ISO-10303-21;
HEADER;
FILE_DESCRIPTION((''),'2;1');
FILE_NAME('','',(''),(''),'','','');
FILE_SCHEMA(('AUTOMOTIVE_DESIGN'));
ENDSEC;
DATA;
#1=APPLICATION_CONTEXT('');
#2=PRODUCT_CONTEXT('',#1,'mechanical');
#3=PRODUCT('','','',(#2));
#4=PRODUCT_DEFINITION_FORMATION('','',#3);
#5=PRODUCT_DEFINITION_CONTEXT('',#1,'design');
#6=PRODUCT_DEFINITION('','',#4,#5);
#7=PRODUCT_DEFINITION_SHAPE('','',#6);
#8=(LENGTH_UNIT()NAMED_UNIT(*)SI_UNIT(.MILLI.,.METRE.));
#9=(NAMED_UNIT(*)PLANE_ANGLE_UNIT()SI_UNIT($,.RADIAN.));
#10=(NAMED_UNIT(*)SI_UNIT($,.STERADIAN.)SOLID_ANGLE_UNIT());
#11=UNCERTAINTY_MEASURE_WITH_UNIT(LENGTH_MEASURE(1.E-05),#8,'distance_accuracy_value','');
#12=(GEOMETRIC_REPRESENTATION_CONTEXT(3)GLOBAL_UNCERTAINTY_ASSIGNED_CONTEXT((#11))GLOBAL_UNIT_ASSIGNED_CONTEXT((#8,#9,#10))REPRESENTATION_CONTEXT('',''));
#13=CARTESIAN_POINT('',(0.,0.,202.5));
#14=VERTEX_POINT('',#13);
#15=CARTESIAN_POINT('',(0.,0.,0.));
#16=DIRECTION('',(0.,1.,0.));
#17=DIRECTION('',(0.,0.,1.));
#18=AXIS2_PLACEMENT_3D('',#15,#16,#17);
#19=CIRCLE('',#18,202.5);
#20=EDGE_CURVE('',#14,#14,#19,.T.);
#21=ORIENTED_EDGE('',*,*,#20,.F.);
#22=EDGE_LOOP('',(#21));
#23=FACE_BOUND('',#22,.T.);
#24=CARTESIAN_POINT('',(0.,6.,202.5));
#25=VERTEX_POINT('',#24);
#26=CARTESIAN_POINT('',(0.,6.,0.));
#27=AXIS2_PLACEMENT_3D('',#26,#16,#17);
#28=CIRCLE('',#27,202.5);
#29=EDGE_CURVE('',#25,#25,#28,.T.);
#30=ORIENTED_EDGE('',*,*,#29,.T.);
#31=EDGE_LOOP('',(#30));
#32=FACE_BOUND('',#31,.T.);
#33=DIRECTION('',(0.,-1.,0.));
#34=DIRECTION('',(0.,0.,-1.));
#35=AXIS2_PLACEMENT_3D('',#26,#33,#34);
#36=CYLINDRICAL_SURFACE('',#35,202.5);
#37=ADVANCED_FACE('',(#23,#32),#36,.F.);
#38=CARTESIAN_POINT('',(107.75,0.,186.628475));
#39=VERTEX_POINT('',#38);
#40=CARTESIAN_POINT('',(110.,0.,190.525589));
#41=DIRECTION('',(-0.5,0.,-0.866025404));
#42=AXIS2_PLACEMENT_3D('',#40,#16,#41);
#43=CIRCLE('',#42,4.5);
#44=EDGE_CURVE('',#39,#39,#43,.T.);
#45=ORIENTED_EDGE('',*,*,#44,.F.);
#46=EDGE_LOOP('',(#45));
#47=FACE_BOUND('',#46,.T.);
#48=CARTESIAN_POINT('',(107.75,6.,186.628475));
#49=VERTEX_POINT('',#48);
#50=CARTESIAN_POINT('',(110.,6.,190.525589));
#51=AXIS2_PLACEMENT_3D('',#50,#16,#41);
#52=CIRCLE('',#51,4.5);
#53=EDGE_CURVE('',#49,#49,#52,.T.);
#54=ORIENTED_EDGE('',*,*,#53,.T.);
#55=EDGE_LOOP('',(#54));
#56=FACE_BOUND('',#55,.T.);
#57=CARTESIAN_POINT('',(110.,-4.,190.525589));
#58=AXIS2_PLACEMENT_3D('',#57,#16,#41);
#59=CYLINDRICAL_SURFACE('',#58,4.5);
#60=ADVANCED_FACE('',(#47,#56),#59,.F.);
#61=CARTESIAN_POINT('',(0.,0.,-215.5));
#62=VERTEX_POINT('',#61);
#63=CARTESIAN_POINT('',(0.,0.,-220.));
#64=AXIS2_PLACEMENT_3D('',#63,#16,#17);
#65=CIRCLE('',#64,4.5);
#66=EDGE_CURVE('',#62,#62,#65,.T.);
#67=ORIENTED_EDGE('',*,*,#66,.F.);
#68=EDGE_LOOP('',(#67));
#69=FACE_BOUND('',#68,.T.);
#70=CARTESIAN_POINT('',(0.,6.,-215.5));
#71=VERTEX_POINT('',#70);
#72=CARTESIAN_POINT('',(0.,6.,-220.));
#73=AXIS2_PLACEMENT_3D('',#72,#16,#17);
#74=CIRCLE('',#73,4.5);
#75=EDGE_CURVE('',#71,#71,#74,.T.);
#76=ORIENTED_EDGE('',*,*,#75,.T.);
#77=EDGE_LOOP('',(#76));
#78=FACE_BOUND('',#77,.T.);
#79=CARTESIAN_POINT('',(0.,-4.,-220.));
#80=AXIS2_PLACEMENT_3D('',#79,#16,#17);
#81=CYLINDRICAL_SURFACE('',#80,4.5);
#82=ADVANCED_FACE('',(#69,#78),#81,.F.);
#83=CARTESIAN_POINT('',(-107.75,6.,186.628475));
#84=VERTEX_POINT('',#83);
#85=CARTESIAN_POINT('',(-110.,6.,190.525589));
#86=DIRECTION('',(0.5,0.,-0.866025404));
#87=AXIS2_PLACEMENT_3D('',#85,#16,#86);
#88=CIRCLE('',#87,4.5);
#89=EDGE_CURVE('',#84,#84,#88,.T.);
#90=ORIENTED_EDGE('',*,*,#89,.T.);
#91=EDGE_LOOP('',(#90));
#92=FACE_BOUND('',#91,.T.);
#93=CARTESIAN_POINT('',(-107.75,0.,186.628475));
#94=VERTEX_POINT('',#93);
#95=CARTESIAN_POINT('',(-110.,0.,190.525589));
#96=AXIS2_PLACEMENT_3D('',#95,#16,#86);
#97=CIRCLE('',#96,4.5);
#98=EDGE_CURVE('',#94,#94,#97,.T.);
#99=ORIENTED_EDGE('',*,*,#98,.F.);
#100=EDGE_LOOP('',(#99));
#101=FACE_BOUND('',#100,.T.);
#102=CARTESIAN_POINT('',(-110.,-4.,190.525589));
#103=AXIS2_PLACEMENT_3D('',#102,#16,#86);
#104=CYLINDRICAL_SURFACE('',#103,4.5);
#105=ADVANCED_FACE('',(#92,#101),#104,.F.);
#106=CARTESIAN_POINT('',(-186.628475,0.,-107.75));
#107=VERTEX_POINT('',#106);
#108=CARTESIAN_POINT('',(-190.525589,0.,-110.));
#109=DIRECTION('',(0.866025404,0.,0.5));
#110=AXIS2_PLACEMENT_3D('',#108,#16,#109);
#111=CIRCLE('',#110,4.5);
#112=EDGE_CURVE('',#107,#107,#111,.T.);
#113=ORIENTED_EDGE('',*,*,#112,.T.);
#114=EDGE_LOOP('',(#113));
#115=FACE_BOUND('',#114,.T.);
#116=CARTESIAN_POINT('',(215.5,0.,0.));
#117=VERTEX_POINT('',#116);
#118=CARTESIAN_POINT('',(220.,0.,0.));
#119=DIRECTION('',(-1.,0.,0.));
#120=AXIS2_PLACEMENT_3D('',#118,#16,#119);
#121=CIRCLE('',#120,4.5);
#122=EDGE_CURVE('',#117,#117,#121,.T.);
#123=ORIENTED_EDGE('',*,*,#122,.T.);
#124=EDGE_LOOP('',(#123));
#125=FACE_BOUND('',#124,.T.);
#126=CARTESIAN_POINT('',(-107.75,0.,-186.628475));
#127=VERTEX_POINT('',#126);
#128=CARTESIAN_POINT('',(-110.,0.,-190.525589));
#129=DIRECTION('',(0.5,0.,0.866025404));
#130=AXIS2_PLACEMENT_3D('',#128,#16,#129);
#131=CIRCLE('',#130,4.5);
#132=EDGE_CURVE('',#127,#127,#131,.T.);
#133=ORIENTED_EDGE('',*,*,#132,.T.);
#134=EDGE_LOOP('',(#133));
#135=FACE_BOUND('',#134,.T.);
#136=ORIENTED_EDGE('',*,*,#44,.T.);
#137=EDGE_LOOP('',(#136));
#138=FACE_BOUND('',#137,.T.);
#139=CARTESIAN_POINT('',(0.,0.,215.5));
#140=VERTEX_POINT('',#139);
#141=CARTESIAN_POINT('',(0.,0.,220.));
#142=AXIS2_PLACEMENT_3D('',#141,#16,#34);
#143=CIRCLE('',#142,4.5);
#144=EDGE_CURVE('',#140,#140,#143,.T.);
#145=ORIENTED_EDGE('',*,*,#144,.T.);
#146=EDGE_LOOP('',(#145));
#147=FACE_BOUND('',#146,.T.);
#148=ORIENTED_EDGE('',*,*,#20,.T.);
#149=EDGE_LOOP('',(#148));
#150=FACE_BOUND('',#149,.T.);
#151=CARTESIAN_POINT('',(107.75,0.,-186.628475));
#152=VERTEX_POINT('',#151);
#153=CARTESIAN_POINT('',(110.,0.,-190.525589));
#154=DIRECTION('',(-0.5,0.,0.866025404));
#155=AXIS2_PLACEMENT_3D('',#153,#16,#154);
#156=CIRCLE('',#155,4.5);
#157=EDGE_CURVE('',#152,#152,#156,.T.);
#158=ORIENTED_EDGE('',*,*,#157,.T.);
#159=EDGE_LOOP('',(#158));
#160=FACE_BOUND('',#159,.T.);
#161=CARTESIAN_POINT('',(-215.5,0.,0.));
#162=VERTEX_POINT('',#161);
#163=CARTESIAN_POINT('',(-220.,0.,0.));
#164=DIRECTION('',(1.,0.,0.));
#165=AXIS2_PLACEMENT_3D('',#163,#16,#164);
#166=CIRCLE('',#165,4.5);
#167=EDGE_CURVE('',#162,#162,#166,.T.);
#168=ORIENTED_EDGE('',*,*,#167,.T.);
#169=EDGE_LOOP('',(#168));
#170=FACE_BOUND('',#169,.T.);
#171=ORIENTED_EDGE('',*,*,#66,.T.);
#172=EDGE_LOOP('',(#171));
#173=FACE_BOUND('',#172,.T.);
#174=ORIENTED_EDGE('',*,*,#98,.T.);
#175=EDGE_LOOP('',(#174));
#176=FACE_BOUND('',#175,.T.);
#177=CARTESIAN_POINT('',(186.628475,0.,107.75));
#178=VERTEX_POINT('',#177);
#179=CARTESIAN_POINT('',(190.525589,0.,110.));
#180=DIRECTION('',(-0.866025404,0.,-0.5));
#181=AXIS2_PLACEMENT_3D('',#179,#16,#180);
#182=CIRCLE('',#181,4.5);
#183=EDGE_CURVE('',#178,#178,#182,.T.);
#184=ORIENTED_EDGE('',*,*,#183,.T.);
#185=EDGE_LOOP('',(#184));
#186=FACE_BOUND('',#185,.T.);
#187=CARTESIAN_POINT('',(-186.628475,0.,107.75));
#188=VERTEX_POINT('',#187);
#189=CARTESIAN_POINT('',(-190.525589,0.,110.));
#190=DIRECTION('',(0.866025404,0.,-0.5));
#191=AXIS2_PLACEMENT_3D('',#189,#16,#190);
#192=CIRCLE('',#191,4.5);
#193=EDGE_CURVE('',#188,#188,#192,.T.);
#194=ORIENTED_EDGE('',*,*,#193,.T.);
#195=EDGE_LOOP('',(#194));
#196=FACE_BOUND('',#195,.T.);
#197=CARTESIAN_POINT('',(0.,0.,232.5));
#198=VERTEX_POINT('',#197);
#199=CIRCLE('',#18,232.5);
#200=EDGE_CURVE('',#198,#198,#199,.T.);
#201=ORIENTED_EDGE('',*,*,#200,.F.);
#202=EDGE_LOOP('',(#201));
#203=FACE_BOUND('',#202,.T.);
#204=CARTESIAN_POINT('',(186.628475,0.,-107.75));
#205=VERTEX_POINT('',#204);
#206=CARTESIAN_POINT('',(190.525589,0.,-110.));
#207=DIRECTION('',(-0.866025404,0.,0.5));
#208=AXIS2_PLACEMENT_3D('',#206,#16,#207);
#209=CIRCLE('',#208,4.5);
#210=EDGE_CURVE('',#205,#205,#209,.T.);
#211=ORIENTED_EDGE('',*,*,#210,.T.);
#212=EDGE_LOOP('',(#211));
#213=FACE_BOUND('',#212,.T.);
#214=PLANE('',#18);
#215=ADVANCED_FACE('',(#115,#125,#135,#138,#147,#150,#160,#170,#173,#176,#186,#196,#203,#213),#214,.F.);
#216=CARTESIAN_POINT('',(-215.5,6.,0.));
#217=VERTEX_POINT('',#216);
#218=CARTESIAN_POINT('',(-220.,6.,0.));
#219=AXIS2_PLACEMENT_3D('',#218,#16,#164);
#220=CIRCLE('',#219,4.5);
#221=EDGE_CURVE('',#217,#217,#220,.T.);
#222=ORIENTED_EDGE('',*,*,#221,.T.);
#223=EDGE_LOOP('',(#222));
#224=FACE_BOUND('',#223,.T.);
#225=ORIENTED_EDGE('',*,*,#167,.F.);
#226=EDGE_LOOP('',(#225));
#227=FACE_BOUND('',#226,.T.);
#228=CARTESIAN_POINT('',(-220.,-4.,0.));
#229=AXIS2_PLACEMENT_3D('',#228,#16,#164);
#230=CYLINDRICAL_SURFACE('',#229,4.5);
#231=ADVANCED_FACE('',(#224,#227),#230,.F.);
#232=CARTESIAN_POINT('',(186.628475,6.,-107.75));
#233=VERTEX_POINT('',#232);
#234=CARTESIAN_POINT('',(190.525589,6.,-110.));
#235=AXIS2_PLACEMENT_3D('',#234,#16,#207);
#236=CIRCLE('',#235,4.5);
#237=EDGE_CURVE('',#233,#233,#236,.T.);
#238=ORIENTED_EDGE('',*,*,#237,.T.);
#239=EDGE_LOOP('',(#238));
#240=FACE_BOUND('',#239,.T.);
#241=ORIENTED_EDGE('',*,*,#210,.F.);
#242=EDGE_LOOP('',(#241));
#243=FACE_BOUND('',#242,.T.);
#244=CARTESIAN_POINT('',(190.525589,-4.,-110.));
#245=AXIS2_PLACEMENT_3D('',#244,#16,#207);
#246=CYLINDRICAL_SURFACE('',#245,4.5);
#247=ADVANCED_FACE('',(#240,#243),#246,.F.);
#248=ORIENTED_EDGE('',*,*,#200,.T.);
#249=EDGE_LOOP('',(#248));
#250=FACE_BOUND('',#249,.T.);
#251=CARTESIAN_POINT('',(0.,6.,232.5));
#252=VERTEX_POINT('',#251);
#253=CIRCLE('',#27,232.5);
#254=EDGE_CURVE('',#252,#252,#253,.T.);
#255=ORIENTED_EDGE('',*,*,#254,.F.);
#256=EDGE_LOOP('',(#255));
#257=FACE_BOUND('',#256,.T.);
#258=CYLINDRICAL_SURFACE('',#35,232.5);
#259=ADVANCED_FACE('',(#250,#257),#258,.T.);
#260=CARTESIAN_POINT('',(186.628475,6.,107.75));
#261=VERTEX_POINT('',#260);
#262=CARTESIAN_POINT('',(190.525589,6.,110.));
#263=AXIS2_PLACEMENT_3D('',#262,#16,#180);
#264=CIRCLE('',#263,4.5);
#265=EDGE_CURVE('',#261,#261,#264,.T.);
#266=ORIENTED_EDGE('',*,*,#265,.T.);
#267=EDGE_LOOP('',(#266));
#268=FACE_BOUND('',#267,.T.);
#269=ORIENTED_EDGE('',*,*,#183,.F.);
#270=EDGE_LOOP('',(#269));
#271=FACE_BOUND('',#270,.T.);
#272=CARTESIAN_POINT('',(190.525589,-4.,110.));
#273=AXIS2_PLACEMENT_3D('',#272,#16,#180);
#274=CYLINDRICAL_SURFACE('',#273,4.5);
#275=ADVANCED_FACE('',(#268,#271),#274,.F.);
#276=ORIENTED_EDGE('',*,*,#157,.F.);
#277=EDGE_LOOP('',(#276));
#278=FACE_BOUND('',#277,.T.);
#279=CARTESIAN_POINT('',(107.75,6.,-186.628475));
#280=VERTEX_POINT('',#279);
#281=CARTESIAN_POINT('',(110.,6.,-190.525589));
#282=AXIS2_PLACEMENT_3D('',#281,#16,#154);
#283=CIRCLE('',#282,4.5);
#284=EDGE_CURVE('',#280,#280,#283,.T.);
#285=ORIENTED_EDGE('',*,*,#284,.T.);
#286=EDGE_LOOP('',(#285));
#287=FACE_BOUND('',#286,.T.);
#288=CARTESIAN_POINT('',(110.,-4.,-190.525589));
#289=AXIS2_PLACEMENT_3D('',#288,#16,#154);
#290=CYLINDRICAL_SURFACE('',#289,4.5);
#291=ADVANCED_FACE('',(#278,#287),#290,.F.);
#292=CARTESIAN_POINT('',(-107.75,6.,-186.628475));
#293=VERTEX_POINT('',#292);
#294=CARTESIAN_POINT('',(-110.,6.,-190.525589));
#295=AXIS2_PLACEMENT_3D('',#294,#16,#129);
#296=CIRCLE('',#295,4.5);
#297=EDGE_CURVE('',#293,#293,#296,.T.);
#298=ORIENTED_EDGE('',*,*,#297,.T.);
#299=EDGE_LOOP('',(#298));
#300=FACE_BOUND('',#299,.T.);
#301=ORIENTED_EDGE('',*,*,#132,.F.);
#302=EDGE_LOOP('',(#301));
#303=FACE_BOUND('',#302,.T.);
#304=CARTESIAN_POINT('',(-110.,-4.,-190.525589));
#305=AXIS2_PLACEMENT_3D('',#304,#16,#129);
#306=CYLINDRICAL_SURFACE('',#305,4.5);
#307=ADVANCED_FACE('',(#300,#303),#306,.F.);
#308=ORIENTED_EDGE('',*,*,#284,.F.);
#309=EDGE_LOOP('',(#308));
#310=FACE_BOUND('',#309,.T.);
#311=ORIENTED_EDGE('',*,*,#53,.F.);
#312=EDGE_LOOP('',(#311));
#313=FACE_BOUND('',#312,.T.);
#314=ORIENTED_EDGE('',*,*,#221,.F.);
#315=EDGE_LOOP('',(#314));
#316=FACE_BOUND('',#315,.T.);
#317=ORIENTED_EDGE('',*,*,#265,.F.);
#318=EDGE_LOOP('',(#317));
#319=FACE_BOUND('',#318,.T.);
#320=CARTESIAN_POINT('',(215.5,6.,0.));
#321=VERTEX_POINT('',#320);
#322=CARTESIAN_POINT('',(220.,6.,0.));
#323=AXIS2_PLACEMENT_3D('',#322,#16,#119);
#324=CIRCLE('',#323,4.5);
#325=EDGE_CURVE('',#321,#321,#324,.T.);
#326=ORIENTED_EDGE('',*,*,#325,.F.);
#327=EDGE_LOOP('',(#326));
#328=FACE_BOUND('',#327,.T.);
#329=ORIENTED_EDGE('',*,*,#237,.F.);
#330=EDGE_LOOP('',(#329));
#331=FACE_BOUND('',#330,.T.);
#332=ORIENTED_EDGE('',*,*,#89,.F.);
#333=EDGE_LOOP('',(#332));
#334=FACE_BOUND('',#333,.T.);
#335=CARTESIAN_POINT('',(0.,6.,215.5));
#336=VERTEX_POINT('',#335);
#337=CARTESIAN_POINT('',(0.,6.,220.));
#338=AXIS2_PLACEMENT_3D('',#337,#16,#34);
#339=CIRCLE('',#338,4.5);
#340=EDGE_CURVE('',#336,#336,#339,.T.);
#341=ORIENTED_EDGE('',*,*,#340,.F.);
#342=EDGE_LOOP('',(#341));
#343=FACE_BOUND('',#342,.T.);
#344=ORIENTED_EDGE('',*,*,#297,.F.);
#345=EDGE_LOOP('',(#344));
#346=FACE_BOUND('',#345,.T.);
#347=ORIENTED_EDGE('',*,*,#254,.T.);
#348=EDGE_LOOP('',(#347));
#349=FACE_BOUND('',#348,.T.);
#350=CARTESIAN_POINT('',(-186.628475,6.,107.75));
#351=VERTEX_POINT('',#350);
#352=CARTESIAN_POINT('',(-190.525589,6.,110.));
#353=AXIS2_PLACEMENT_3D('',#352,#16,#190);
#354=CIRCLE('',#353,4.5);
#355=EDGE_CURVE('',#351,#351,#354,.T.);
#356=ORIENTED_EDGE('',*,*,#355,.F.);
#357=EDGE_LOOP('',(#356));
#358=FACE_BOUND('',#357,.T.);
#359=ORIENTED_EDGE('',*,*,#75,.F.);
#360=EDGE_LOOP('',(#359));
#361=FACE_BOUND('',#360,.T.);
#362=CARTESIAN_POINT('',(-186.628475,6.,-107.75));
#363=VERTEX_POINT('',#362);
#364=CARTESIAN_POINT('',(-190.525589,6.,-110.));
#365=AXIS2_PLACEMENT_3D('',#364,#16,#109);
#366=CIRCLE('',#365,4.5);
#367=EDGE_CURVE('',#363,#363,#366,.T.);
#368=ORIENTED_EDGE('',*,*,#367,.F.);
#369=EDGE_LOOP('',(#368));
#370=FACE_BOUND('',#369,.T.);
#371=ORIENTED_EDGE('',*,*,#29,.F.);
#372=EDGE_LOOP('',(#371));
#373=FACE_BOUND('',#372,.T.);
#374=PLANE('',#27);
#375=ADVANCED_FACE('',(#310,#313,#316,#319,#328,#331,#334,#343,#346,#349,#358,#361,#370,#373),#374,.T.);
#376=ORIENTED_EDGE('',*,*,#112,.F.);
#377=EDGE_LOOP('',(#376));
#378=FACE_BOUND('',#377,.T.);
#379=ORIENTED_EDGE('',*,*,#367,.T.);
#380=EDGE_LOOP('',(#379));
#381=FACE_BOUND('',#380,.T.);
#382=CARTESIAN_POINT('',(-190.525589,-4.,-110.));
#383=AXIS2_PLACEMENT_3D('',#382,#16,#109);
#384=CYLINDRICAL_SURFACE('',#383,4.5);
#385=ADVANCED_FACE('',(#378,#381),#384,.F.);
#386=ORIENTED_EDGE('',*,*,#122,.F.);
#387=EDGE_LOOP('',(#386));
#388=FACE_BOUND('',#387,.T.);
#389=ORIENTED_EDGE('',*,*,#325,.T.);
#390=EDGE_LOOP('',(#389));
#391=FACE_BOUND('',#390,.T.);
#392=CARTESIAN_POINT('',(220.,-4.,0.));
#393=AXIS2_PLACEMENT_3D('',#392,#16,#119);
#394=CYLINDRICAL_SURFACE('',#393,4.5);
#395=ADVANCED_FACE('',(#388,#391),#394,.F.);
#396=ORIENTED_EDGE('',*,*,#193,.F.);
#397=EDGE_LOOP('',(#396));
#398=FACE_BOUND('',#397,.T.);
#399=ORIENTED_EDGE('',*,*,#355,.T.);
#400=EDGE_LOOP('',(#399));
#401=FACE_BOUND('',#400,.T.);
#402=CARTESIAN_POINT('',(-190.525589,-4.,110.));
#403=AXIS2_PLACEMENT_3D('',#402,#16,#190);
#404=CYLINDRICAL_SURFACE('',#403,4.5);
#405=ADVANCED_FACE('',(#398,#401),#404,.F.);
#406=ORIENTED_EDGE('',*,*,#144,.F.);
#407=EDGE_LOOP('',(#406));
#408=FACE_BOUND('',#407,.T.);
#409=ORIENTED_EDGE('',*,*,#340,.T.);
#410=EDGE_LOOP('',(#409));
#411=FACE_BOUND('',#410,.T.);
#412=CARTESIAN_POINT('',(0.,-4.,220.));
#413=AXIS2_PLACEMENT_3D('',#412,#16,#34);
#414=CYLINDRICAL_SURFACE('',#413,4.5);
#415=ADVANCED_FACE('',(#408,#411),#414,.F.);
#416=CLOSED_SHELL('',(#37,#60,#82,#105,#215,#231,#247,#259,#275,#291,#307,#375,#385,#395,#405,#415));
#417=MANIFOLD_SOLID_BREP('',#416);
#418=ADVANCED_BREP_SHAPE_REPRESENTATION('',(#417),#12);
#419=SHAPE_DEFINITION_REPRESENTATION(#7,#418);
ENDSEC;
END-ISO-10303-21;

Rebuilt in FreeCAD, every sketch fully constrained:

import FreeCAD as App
import Part
import Sketcher
Q = App.Units.Quantity

doc = App.newDocument("Part")
body = doc.addObject("PartDesign::Body", "Body")

sketch1 = body.newObject("Sketcher::SketchObject", "Sketch")
sketch1.AttachmentSupport = (doc.getObject("XZ_Plane"), [""])
sketch1.MapMode = "FlatFace"
sketch1.addGeometry([
    Part.Circle(App.Vector(0, 0, 0), App.Vector(0, 0, 1), 232),
    Part.Circle(App.Vector(0, 0, 0), App.Vector(0, 0, 1), 202),
], False)
sketch1.addConstraint([
    Sketcher.Constraint("Coincident", 0, 3, -1, 1),
    Sketcher.Constraint("Coincident", 1, 3, -1, 1),
    Sketcher.Constraint("Diameter", 0, Q("465 mm")),
    Sketcher.Constraint("Diameter", 1, Q("405 mm")),
])
pad1 = body.newObject("PartDesign::Pad", "Pad")
pad1.Profile = sketch1
pad1.Length = 6
pad1.Reversed = True

sketch2 = body.newObject("Sketcher::SketchObject", "Sketch001")
sketch2.AttachmentSupport = (doc.getObject("XZ_Plane"), [""])
sketch2.MapMode = "FlatFace"
sketch2.AttachmentOffset = App.Placement(App.Vector(0, 0, -6), App.Rotation())
sketch2.addGeometry(Part.Circle(App.Vector(0, -220, 0), App.Vector(0, 0, 1), 4.5), False)
sketch2.addConstraint([
    Sketcher.Constraint("PointOnObject", 0, 3, -2),
    Sketcher.Constraint("Diameter", 0, Q("9 mm")),
    Sketcher.Constraint("DistanceY", 0, 3, -1, 1, Q("220 mm")),
])
pocket1 = body.newObject("PartDesign::Pocket", "Pocket")
pocket1.Profile = sketch2
pocket1.Length = 10
pocket1.Reversed = True
doc.recompute()

polarpattern = body.newObject("PartDesign::PolarPattern", "PolarPattern")
polarpattern.Originals = [pocket1]
polarpattern.Axis = (doc.getObject("Y_Axis"), [""])
polarpattern.Angle = 360
polarpattern.Occurrences = 12
body.Tip = polarpattern

doc.recompute()
